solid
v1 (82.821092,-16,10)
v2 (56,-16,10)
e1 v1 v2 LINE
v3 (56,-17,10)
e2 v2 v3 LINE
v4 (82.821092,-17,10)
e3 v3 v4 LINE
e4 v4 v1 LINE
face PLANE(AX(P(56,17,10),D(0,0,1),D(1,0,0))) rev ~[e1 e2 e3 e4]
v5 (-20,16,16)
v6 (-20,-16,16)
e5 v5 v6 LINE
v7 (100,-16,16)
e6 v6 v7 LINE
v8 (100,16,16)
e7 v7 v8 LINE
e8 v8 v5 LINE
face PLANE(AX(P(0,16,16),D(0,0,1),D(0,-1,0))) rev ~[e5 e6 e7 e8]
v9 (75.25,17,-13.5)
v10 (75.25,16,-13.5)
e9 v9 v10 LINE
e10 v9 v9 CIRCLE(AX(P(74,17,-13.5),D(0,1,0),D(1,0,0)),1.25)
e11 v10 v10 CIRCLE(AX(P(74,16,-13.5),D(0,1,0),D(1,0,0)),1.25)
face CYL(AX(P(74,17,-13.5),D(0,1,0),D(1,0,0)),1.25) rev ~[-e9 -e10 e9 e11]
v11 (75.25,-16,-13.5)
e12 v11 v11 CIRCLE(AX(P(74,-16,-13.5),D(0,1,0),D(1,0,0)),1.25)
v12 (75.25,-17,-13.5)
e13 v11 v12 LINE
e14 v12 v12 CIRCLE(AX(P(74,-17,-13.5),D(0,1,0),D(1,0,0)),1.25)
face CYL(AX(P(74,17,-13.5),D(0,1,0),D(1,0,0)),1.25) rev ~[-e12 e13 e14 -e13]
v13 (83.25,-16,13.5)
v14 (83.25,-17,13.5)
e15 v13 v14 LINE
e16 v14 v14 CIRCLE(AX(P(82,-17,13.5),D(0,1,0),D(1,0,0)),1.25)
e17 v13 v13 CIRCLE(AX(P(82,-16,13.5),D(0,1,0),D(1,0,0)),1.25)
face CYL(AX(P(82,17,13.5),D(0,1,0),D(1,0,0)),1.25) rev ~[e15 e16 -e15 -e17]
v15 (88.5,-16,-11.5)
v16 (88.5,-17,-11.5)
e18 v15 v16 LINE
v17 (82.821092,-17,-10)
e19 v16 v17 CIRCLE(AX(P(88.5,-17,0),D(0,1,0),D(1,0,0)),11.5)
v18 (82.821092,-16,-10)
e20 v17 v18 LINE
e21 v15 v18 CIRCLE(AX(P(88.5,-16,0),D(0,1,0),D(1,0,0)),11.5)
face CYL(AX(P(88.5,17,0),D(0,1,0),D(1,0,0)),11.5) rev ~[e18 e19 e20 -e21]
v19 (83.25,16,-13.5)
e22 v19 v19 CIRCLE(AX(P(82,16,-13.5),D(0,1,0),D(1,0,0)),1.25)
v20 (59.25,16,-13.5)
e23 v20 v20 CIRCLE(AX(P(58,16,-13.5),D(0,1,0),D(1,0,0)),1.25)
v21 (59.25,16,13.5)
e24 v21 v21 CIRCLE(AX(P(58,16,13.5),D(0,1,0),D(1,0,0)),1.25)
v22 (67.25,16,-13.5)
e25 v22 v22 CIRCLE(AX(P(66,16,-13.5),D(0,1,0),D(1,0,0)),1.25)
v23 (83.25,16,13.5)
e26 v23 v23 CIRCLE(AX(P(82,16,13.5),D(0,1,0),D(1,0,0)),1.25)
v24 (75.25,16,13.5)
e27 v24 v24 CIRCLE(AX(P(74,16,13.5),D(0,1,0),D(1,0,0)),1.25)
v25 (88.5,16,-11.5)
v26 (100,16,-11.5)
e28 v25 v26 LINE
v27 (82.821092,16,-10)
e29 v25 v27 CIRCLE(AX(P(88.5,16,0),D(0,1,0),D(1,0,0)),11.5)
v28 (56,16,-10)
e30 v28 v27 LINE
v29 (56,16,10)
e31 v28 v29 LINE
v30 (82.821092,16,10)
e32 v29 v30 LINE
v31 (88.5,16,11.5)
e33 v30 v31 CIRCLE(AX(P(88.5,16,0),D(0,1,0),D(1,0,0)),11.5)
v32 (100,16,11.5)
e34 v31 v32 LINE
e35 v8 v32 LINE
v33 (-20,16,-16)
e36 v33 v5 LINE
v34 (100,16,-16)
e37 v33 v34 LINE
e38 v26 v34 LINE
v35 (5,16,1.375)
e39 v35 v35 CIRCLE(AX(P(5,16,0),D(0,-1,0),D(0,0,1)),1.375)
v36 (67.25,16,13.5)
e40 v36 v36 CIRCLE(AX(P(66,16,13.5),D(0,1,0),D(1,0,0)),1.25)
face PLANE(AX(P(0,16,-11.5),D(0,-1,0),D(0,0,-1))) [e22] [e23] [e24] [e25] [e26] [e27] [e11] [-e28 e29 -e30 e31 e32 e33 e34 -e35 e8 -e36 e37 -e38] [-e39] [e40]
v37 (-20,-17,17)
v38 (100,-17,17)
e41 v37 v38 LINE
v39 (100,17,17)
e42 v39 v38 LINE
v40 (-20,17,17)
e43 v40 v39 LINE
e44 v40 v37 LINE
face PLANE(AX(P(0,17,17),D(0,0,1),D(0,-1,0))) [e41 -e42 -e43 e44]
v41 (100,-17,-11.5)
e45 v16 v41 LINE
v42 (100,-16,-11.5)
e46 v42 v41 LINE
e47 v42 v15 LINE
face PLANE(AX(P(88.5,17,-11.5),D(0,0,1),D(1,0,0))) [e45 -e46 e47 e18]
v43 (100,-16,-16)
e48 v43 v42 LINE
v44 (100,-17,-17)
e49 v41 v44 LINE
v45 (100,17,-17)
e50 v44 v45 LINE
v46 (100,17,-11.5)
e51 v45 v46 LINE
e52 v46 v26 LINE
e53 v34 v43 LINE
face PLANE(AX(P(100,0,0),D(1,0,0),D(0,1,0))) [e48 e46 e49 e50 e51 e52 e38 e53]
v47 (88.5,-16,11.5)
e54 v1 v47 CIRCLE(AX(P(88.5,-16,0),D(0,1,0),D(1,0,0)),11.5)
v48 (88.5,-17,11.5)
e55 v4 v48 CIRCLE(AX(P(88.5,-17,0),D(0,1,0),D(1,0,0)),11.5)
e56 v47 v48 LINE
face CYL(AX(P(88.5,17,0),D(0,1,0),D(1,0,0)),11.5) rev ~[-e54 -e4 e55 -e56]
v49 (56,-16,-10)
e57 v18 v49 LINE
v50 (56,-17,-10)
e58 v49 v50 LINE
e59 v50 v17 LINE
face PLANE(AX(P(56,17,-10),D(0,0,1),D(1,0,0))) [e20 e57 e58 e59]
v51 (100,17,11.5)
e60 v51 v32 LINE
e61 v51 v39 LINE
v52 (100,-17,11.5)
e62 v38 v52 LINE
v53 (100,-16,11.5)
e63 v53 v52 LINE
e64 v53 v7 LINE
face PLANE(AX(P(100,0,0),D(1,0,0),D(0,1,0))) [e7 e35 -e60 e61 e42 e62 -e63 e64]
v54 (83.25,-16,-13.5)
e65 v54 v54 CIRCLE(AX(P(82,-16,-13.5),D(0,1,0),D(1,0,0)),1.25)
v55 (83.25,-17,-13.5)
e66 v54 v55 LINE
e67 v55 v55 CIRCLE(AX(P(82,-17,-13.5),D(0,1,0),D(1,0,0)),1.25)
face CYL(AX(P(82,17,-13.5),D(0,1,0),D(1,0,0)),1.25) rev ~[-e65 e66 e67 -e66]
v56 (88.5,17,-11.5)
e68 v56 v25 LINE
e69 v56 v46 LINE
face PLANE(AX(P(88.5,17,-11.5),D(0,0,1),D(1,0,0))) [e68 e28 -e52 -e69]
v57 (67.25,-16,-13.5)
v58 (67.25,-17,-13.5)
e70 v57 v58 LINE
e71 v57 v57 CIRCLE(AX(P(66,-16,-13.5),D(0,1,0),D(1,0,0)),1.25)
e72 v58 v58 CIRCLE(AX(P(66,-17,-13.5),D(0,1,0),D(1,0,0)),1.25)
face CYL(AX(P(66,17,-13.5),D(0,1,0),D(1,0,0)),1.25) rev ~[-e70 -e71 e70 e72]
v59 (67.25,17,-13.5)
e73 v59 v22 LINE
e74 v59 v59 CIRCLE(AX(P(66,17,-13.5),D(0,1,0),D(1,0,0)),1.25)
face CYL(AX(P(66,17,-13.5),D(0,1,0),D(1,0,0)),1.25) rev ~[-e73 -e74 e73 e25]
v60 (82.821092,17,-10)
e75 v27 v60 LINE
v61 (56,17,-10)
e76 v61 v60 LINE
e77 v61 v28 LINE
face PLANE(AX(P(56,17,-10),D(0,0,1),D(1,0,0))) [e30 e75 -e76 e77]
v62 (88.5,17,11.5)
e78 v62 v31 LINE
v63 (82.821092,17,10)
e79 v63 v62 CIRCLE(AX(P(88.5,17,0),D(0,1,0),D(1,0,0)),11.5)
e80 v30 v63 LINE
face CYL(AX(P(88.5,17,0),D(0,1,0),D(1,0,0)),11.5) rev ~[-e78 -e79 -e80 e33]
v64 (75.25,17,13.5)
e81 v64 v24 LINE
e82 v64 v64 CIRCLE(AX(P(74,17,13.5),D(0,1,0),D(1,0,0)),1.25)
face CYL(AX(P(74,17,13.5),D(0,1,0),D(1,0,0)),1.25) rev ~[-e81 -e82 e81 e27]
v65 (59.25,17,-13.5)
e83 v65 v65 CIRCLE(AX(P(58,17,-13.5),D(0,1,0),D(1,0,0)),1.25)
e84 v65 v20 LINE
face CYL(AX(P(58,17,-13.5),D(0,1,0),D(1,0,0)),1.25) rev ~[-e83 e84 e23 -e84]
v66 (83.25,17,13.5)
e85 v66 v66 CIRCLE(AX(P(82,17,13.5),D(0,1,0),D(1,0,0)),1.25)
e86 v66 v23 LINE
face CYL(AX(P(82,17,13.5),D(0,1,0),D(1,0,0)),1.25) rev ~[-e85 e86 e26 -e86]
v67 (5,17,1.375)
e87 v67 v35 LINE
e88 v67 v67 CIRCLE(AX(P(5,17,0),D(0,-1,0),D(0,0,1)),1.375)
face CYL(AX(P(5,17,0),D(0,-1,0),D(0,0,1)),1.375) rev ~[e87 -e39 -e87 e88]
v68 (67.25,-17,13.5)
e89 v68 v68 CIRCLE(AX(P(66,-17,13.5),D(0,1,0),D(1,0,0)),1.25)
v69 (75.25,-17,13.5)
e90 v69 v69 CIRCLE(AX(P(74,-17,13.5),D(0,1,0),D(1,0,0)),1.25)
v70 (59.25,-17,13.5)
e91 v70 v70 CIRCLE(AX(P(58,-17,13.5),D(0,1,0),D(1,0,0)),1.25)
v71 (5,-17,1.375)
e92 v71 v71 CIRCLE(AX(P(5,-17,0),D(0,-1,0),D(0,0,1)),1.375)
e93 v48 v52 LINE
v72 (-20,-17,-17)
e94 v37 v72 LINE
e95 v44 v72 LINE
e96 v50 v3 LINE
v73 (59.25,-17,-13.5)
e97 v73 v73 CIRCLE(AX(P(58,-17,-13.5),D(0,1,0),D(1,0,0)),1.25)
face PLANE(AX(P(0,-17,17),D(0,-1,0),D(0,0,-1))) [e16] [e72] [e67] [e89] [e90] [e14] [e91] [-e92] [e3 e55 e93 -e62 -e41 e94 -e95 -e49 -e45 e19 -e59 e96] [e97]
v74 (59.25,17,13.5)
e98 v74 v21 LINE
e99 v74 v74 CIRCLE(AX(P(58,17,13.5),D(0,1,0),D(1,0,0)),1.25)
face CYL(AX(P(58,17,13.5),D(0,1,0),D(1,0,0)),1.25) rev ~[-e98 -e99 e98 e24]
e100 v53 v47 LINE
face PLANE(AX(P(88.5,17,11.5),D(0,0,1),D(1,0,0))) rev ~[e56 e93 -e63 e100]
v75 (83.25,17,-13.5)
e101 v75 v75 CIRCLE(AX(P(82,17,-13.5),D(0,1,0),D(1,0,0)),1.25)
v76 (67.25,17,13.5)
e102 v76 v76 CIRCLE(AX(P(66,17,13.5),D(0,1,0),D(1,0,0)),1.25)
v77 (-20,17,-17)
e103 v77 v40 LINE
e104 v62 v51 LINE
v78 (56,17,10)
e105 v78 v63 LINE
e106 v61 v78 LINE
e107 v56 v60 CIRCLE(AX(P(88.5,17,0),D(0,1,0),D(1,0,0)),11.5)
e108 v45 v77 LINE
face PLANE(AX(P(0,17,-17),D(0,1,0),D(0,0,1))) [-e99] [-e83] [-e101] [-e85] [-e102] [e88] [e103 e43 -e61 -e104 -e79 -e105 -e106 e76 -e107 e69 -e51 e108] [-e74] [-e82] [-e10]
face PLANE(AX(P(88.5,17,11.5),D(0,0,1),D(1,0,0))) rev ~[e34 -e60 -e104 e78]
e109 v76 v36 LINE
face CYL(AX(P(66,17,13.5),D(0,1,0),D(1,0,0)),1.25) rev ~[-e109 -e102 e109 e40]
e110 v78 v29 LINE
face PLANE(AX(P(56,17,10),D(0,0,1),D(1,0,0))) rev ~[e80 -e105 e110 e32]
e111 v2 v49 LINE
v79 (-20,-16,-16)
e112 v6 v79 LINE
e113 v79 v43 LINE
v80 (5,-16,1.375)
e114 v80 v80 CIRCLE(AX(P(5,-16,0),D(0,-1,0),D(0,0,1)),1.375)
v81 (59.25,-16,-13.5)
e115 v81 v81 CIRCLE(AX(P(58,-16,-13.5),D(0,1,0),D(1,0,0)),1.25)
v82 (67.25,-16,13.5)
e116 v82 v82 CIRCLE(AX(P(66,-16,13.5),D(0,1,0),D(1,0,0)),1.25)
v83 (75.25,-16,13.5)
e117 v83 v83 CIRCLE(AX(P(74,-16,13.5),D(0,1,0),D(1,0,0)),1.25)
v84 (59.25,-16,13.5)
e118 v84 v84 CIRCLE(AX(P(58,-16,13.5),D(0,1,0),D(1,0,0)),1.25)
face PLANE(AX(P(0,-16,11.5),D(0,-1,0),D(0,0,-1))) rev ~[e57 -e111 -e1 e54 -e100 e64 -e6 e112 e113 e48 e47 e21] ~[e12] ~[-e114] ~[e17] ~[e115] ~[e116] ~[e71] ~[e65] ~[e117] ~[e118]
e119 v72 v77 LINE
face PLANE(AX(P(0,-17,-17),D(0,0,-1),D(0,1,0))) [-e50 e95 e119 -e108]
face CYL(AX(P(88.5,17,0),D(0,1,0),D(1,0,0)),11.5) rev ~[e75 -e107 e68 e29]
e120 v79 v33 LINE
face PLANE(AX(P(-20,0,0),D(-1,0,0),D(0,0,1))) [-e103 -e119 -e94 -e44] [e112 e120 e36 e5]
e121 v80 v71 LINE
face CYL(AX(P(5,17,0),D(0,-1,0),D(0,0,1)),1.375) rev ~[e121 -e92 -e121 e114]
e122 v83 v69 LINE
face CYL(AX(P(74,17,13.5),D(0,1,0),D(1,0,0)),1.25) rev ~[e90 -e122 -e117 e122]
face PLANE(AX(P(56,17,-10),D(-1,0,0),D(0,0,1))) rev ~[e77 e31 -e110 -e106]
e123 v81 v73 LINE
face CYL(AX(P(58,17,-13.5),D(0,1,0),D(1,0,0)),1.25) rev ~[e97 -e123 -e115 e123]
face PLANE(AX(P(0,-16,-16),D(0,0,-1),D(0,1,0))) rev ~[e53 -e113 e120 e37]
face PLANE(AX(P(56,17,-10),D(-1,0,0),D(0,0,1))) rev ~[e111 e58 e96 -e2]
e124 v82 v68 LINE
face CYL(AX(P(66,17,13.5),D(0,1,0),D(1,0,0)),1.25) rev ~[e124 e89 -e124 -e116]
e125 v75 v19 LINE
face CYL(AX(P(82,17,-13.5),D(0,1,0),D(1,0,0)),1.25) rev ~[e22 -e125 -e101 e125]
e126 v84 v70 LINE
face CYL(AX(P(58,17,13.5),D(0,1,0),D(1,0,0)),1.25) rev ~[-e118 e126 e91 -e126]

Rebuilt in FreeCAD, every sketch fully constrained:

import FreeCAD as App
import Part
import Sketcher

V = App.Vector
Q = App.Units.Quantity


def add_polygon(sketch, points):
    """Adds a closed chain of lines whose ends are joined by coincident constraints."""
    first, n = sketch.GeometryCount, len(points)
    for a, b in zip(points, points[1:] + points[:1]):
        sketch.addGeometry(Part.LineSegment(App.Vector(*a, 0), App.Vector(*b, 0)), False)
    for i in range(n):
        sketch.addConstraint(Sketcher.Constraint("Coincident", first + i, 2, first + (i + 1) % n, 1))

doc = App.newDocument("Part")
body = doc.addObject("PartDesign::Body", "Body")

sketch1 = body.newObject("Sketcher::SketchObject", "Sketch")
sketch1.AttachmentSupport = (doc.getObject("YZ_Plane"), [""])
sketch1.MapMode = "FlatFace"
add_polygon(sketch1, [(17, -17), (17, 17), (-17, 17), (-17, -17)])
add_polygon(sketch1, [(-16, -16), (-16, 16), (16, 16), (16, -16)])
sketch1.addConstraint([
    Sketcher.Constraint("Vertical", 0),
    Sketcher.Constraint("Horizontal", 1),
    Sketcher.Constraint("Vertical", 2),
    Sketcher.Constraint("Horizontal", 3),
    Sketcher.Constraint("Vertical", 4),
    Sketcher.Constraint("Horizontal", 5),
    Sketcher.Constraint("Vertical", 6),
    Sketcher.Constraint("Horizontal", 7),
    Sketcher.Constraint("Symmetric", 0, 2, 2, 2, -1, 1),
    Sketcher.Constraint("Symmetric", 4, 2, 6, 2, -1, 1),
    Sketcher.Constraint("Equal", 3, 0),
    Sketcher.Constraint("Equal", 7, 4),
    Sketcher.Constraint("DistanceX", 1, 2, 1, 1, Q("34 mm")),
    Sketcher.Constraint("DistanceX", 5, 1, 5, 2, Q("32 mm")),
])
pad1 = body.newObject("PartDesign::Pad", "Pad")
pad1.Profile = sketch1
pad1.Length = 100

sketch2 = body.newObject("Sketcher::SketchObject", "Sketch001")
sketch2.AttachmentSupport = (doc.getObject("XZ_Plane"), [""])
sketch2.MapMode = "FlatFace"
sketch2.AttachmentOffset = App.Placement(V(0, 0, -17), App.Rotation())
sketch2.addGeometry([
    Part.Circle(V(82, -13.5, 0), V(0, 0, 1), 1.25),
    Part.Circle(V(74, -13.5, 0), V(0, 0, 1), 1.25),
    Part.Circle(V(66, -13.5, 0), V(0, 0, 1), 1.25),
    Part.Circle(V(58, -13.5, 0), V(0, 0, 1), 1.25),
    Part.Circle(V(82, 13.5, 0), V(0, 0, 1), 1.25),
    Part.Circle(V(74, 13.5, 0), V(0, 0, 1), 1.25),
    Part.Circle(V(66, 13.5, 0), V(0, 0, 1), 1.25),
    Part.Circle(V(58, 13.5, 0), V(0, 0, 1), 1.25),
    Part.Circle(V(88.5, 0, 0), V(0, 0, 1), 11.5),
], False)
sketch2.addConstraint([
    Sketcher.Constraint("Equal", 0, 1),
    Sketcher.Constraint("Equal", 1, 2),
    Sketcher.Constraint("Equal", 2, 3),
    Sketcher.Constraint("Equal", 3, 4),
    Sketcher.Constraint("Equal", 4, 5),
    Sketcher.Constraint("Equal", 5, 6),
    Sketcher.Constraint("Equal", 6, 7),
    Sketcher.Constraint("Symmetric", 0, 3, 4, 3, -1),
    Sketcher.Constraint("Symmetric", 1, 3, 5, 3, -1),
    Sketcher.Constraint("Symmetric", 2, 3, 6, 3, -1),
    Sketcher.Constraint("Symmetric", 3, 3, 7, 3, -1),
    Sketcher.Constraint("PointOnObject", 8, 3, -1),
    Sketcher.Constraint("Horizontal", 0, 3, 1, 3),
    Sketcher.Constraint("Horizontal", 1, 3, 2, 3),
    Sketcher.Constraint("Horizontal", 2, 3, 3, 3),
    Sketcher.Constraint("Diameter", 8, Q("23 mm")),
    Sketcher.Constraint("Diameter", 0, Q("2.5 mm")),
    Sketcher.Constraint("DistanceX", 1, 3, 0, 3, Q("8 mm")),
    Sketcher.Constraint("DistanceX", 2, 3, 1, 3, Q("8 mm")),
    Sketcher.Constraint("DistanceX", 3, 3, 2, 3, Q("8 mm")),
    Sketcher.Constraint("DistanceY", 0, 3, 4, 3, Q("27 mm")),
    Sketcher.Constraint("DistanceX", 0, 3, 8, 3, Q("6.5 mm")),
    Sketcher.Constraint("DistanceX", -1, 1, 0, 3, Q("82 mm")),
])
pocket1 = body.newObject("PartDesign::Pocket", "Pocket")
pocket1.Profile = sketch2
pocket1.Type = "ThroughAll"
pocket1.Reversed = True

sketch3 = body.newObject("Sketcher::SketchObject", "Sketch002")
sketch3.AttachmentSupport = (doc.getObject("XZ_Plane"), [""])
sketch3.MapMode = "FlatFace"
sketch3.AttachmentOffset = App.Placement(V(0, 0, -17), App.Rotation())
add_polygon(sketch3, [(83.498, -10), (56, -10), (56, 10), (83.498, 10)])
sketch3.addConstraint([
    Sketcher.Constraint("Horizontal", 0),
    Sketcher.Constraint("Vertical", 1),
    Sketcher.Constraint("Horizontal", 2),
    Sketcher.Constraint("Vertical", 3),
    Sketcher.Constraint("DistanceY", 1, 1, 1, 2, Q("20 mm")),
    Sketcher.Constraint("DistanceX", -1, 1, 0, 2, Q("56 mm")),
    Sketcher.Constraint("DistanceY", 0, 2, -1, 1, Q("10 mm")),
    Sketcher.Constraint("DistanceX", 0, 2, 0, 1, Q("27.498 mm")),
])
pocket2 = body.newObject("PartDesign::Pocket", "Pocket001")
pocket2.Profile = sketch3
pocket2.Type = "ThroughAll"
pocket2.Reversed = True

sketch4 = body.newObject("Sketcher::SketchObject", "Sketch003")
sketch4.AttachmentSupport = (doc.getObject("XZ_Plane"), [""])
sketch4.MapMode = "FlatFace"
sketch4.AttachmentOffset = App.Placement(V(0, 0, -17), App.Rotation())
add_polygon(sketch4, [(88.5, -11.5), (88.5, 11.5), (103.9894, 11.5), (103.9894, -11.5)])
sketch4.addConstraint([
    Sketcher.Constraint("Vertical", 0),
    Sketcher.Constraint("Horizontal", 1),
    Sketcher.Constraint("Vertical", 2),
    Sketcher.Constraint("Horizontal", 3),
    Sketcher.Constraint("DistanceY", 0, 1, 0, 2, Q("23 mm")),
    Sketcher.Constraint("DistanceX", -1, 1, 0, 2, Q("88.5 mm")),
    Sketcher.Constraint("DistanceY", -1, 1, 0, 2, Q("11.5 mm")),
    Sketcher.Constraint("DistanceX", 1, 1, 1, 2, Q("15.4894 mm")),
])
pocket3 = body.newObject("PartDesign::Pocket", "Pocket002")
pocket3.Profile = sketch4
pocket3.Type = "ThroughAll"
pocket3.Reversed = True

sketch5 = body.newObject("Sketcher::SketchObject", "Sketch004")
sketch5.AttachmentSupport = (doc.getObject("XZ_Plane"), [""])
sketch5.MapMode = "FlatFace"
sketch5.AttachmentOffset = App.Placement(V(0, 0, -17), App.Rotation())
sketch5.addGeometry(Part.Circle(V(5, 0, 0), V(0, 0, 1), 1.375), False)
sketch5.addConstraint([
    Sketcher.Constraint("PointOnObject", 0, 3, -1),
    Sketcher.Constraint("Diameter", 0, Q("2.75 mm")),
    Sketcher.Constraint("DistanceX", -1, 1, 0, 3, Q("5 mm")),
])
doc.recompute()
hole = body.newObject("PartDesign::Hole", "Hole")
hole.Profile = sketch5
hole.ThreadType = "None"
hole.Diameter = 2.75
hole.DepthType = "ThroughAll"
hole.Reversed = True

sketch6 = body.newObject("Sketcher::SketchObject", "Sketch005")
sketch6.AttachmentSupport = (doc.getObject("YZ_Plane"), [""])
sketch6.MapMode = "FlatFace"
add_polygon(sketch6, [(17, 17), (17, -17), (-17, -17), (-17, 17)])
add_polygon(sketch6, [(16, -16), (16, 16), (-16, 16), (-16, -16)])
sketch6.addConstraint([
    Sketcher.Constraint("Vertical", 0),
    Sketcher.Constraint("Horizontal", 1),
    Sketcher.Constraint("Vertical", 2),
    Sketcher.Constraint("Horizontal", 3),
    Sketcher.Constraint("Vertical", 4),
    Sketcher.Constraint("Horizontal", 5),
    Sketcher.Constraint("Vertical", 6),
    Sketcher.Constraint("Horizontal", 7),
    Sketcher.Constraint("Symmetric", 0, 2, 2, 2, -1, 1),
    Sketcher.Constraint("Symmetric", 4, 2, 6, 2, -1, 1),
    Sketcher.Constraint("Equal", 3, 0),
    Sketcher.Constraint("Equal", 7, 4),
    Sketcher.Constraint("DistanceX", 1, 2, 1, 1, Q("34 mm")),
    Sketcher.Constraint("DistanceX", 5, 2, 5, 1, Q("32 mm")),
])
pad2 = body.newObject("PartDesign::Pad", "Pad001")
pad2.Profile = sketch6
pad2.Length = 20
pad2.Reversed = True

doc.recompute()
